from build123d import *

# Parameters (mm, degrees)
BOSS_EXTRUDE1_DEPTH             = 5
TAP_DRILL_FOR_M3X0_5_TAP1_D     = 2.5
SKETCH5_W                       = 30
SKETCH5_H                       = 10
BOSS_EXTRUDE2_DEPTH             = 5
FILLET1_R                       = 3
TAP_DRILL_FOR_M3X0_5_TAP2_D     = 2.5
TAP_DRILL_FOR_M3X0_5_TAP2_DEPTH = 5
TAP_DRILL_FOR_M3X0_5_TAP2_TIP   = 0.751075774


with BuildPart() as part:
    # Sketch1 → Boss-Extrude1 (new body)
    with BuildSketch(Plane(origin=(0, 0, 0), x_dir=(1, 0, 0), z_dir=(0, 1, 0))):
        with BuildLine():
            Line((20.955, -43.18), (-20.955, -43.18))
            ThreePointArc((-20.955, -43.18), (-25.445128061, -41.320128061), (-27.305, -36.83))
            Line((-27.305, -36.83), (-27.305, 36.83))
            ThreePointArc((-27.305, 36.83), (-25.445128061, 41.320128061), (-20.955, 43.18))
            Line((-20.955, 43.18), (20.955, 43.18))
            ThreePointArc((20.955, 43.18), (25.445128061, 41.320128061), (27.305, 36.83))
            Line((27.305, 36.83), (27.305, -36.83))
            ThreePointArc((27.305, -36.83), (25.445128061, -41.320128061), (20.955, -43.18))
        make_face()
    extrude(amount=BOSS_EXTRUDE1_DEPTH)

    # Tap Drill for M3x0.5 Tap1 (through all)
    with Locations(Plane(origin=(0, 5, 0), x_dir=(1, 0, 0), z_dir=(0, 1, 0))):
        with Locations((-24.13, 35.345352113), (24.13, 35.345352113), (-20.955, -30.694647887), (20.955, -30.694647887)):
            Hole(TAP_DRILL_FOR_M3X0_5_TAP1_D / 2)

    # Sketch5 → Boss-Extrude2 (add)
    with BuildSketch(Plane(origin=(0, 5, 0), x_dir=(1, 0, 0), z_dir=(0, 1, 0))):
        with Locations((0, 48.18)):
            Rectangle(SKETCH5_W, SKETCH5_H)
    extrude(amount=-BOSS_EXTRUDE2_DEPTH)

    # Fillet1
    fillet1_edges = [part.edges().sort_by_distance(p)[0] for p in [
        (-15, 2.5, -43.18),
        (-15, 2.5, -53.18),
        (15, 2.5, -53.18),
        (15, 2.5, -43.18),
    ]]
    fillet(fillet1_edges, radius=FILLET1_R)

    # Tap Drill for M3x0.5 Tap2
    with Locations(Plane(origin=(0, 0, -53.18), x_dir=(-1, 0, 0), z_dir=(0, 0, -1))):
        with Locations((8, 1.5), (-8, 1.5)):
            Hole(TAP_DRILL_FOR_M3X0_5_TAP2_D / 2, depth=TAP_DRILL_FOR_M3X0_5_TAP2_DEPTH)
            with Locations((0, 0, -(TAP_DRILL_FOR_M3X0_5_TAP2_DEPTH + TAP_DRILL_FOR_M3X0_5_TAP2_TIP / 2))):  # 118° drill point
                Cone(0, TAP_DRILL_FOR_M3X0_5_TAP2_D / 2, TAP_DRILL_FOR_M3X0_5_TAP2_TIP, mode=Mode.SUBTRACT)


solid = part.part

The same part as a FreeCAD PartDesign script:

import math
import FreeCAD as App
import Part
import Sketcher


def edges_at(feature, points):
    """Names of the edges that pass closest to the given points."""
    edges = feature.Shape.Edges
    near = lambda p: min(range(len(edges)), key=lambda i: edges[i].distToShape(Part.Vertex(*p))[0])
    return sorted({f"Edge{near(p) + 1}" for p in points})

doc = App.newDocument("Part")
body = doc.addObject("PartDesign::Body", "Body")

# Sketch on XZ plane
sketch1 = doc.addObject("Sketcher::SketchObject", "Sketch")
body.addObject(sketch1)
sketch1.AttachmentSupport = (doc.XZ_Plane, [""])
sketch1.MapMode = "FlatFace"
sketch1.addGeometry(Part.LineSegment(App.Vector(-20.955, 43.18, 0), App.Vector(20.955, 43.18, 0)), False)
sketch1.addGeometry(Part.ArcOfCircle(Part.Circle(App.Vector(20.955, 36.83, 0), App.Vector(0, 0, 1), 6.35), math.radians(0), math.radians(90)), False)
sketch1.addGeometry(Part.LineSegment(App.Vector(27.305, 36.83, 0), App.Vector(27.305, -36.83, 0)), False)
sketch1.addGeometry(Part.ArcOfCircle(Part.Circle(App.Vector(20.955, -36.83, 0), App.Vector(0, 0, 1), 6.35), math.radians(-90), math.radians(0)), False)
sketch1.addGeometry(Part.LineSegment(App.Vector(20.955, -43.18, 0), App.Vector(-20.955, -43.18, 0)), False)
sketch1.addGeometry(Part.ArcOfCircle(Part.Circle(App.Vector(-20.955, -36.83, 0), App.Vector(0, 0, 1), 6.35), math.radians(180), math.radians(270)), False)
sketch1.addGeometry(Part.LineSegment(App.Vector(-27.305, -36.83, 0), App.Vector(-27.305, 36.83, 0)), False)
sketch1.addGeometry(Part.ArcOfCircle(Part.Circle(App.Vector(-20.955, 36.83, 0), App.Vector(0, 0, 1), 6.35), math.radians(90), math.radians(180)), False)
sketch1.addConstraint(Sketcher.Constraint("Tangent", 0, 2, 1, 2))
sketch1.addConstraint(Sketcher.Constraint("Tangent", 1, 1, 2, 1))
sketch1.addConstraint(Sketcher.Constraint("Tangent", 2, 2, 3, 2))
sketch1.addConstraint(Sketcher.Constraint("Tangent", 3, 1, 4, 1))
sketch1.addConstraint(Sketcher.Constraint("Tangent", 4, 2, 5, 2))
sketch1.addConstraint(Sketcher.Constraint("Tangent", 5, 1, 6, 1))
sketch1.addConstraint(Sketcher.Constraint("Tangent", 6, 2, 7, 2))
sketch1.addConstraint(Sketcher.Constraint("Tangent", 7, 1, 0, 1))
sketch1.addConstraint(Sketcher.Constraint("Horizontal", 0))
sketch1.addConstraint(Sketcher.Constraint("Vertical", 2))
sketch1.addConstraint(Sketcher.Constraint("Horizontal", 4))
sketch1.addConstraint(Sketcher.Constraint("Vertical", 6))
sketch1.addConstraint(Sketcher.Constraint("Equal", 1, 3))
sketch1.addConstraint(Sketcher.Constraint("Equal", 3, 5))
sketch1.addConstraint(Sketcher.Constraint("Equal", 5, 7))
sketch1.addConstraint(Sketcher.Constraint("Symmetric", 1, 3, 5, 3, -1, 1))
sketch1.addConstraint(Sketcher.Constraint("Radius", 1, 6.35))
sketch1.addConstraint(Sketcher.Constraint("DistanceX", 0, 1, 0, 2, 41.91))
sketch1.addConstraint(Sketcher.Constraint("DistanceY", 2, 2, 2, 1, 73.66))
pad1 = doc.addObject("PartDesign::Pad", "Pad")
body.addObject(pad1)
pad1.Profile = sketch1
pad1.Length = 5
pad1.Reversed = True

# Sketch on XZ plane
sketch2 = doc.addObject("Sketcher::SketchObject", "Sketch001")
body.addObject(sketch2)
sketch2.AttachmentSupport = (doc.XZ_Plane, [""])
sketch2.MapMode = "FlatFace"
sketch2.AttachmentOffset = App.Placement(App.Vector(0, 0, -5), App.Rotation())
sketch2.addGeometry(Part.Circle(App.Vector(-24.13, -35.345352, 0), App.Vector(0, 0, 1), 1.25), False)
sketch2.addGeometry(Part.Circle(App.Vector(24.13, -35.345352, 0), App.Vector(0, 0, 1), 1.25), False)
sketch2.addGeometry(Part.Circle(App.Vector(-20.955, 30.694648, 0), App.Vector(0, 0, 1), 1.25), False)
sketch2.addGeometry(Part.Circle(App.Vector(20.955, 30.694648, 0), App.Vector(0, 0, 1), 1.25), False)
sketch2.addConstraint(Sketcher.Constraint("Equal", 0, 1))
sketch2.addConstraint(Sketcher.Constraint("Equal", 1, 2))
sketch2.addConstraint(Sketcher.Constraint("Equal", 2, 3))
sketch2.addConstraint(Sketcher.Constraint("Symmetric", 0, 3, 1, 3, -2))
sketch2.addConstraint(Sketcher.Constraint("Symmetric", 2, 3, 3, 3, -2))
sketch2.addConstraint(Sketcher.Constraint("Diameter", 0, 2.5))
sketch2.addConstraint(Sketcher.Constraint("DistanceX", 0, 3, -1, 1, 24.13))
sketch2.addConstraint(Sketcher.Constraint("DistanceY", 0, 3, 2, 3, 66.04))
sketch2.addConstraint(Sketcher.Constraint("DistanceX", 2, 3, 3, 3, 41.91))
sketch2.addConstraint(Sketcher.Constraint("DistanceY", 0, 3, -1, 1, 35.345352))
doc.recompute()
hole = doc.addObject("PartDesign::Hole", "Hole")
body.addObject(hole)
hole.Profile = sketch2
hole.ThreadType = "None"
hole.Diameter = 2.5
hole.DepthType = "ThroughAll"
hole.Reversed = True

# Sketch on XZ plane
sketch3 = doc.addObject("Sketcher::SketchObject", "Sketch002")
body.addObject(sketch3)
sketch3.AttachmentSupport = (doc.XZ_Plane, [""])
sketch3.MapMode = "FlatFace"
sketch3.AttachmentOffset = App.Placement(App.Vector(0, 0, -5), App.Rotation())
sketch3.addGeometry(Part.LineSegment(App.Vector(-15, -53.18, 0), App.Vector(-15, -43.18, 0)), False)
sketch3.addGeometry(Part.LineSegment(App.Vector(-15, -43.18, 0), App.Vector(15, -43.18, 0)), False)
sketch3.addGeometry(Part.LineSegment(App.Vector(15, -43.18, 0), App.Vector(15, -53.18, 0)), False)
sketch3.addGeometry(Part.LineSegment(App.Vector(15, -53.18, 0), App.Vector(-15, -53.18, 0)), False)
sketch3.addConstraint(Sketcher.Constraint("Coincident", 0, 2, 1, 1))
sketch3.addConstraint(Sketcher.Constraint("Coincident", 1, 2, 2, 1))
sketch3.addConstraint(Sketcher.Constraint("Coincident", 2, 2, 3, 1))
sketch3.addConstraint(Sketcher.Constraint("Coincident", 3, 2, 0, 1))
sketch3.addConstraint(Sketcher.Constraint("Vertical", 0))
sketch3.addConstraint(Sketcher.Constraint("Horizontal", 1))
sketch3.addConstraint(Sketcher.Constraint("Vertical", 2))
sketch3.addConstraint(Sketcher.Constraint("Horizontal", 3))
sketch3.addConstraint(Sketcher.Constraint("DistanceX", 1, 1, 1, 2, 30.0))
sketch3.addConstraint(Sketcher.Constraint("DistanceY", 0, 1, 0, 2, 10.0))
sketch3.addConstraint(Sketcher.Constraint("DistanceX", 0, 2, -1, 1, 15.0))
sketch3.addConstraint(Sketcher.Constraint("DistanceY", 0, 2, -1, 1, 43.18))
pad2 = doc.addObject("PartDesign::Pad", "Pad001")
body.addObject(pad2)
pad2.Profile = sketch3
pad2.Length = 5
doc.recompute()

fillet = doc.addObject("PartDesign::Fillet", "Fillet")
body.addObject(fillet)
fillet.Base = (pad2, edges_at(pad2, [
    (-15, 2.5, -43.18),
    (-15, 2.5, -53.18),
    (15, 2.5, -53.18),
    (15, 2.5, -43.18),
]))
fillet.Radius = 3

# Sketch on XY plane
sketch4 = doc.addObject("Sketcher::SketchObject", "Sketch003")
body.addObject(sketch4)
sketch4.AttachmentSupport = (doc.XY_Plane, [""])
sketch4.MapMode = "FlatFace"
sketch4.AttachmentOffset = App.Placement(App.Vector(0, 0, -53.18), App.Rotation())
sketch4.addGeometry(Part.Circle(App.Vector(-8, 1.5, 0), App.Vector(0, 0, 1), 1.25), False)
sketch4.addGeometry(Part.Circle(App.Vector(8, 1.5, 0), App.Vector(0, 0, 1), 1.25), False)
sketch4.addConstraint(Sketcher.Constraint("Equal", 0, 1))
sketch4.addConstraint(Sketcher.Constraint("Symmetric", 0, 3, 1, 3, -2))
sketch4.addConstraint(Sketcher.Constraint("Diameter", 0, 2.5))
sketch4.addConstraint(Sketcher.Constraint("DistanceX", 0, 3, -1, 1, 8.0))
sketch4.addConstraint(Sketcher.Constraint("DistanceY", -1, 1, 0, 3, 1.5))
doc.recompute()
hole2 = doc.addObject("PartDesign::Hole", "Hole001")
body.addObject(hole2)
hole2.Profile = sketch4
hole2.ThreadType = "None"
hole2.Diameter = 2.5
hole2.DepthType = "Dimension"
hole2.Depth = 5
hole2.DrillPoint = "Angled"
hole2.DrillPointAngle = 118
hole2.Reversed = True

doc.recompute()
